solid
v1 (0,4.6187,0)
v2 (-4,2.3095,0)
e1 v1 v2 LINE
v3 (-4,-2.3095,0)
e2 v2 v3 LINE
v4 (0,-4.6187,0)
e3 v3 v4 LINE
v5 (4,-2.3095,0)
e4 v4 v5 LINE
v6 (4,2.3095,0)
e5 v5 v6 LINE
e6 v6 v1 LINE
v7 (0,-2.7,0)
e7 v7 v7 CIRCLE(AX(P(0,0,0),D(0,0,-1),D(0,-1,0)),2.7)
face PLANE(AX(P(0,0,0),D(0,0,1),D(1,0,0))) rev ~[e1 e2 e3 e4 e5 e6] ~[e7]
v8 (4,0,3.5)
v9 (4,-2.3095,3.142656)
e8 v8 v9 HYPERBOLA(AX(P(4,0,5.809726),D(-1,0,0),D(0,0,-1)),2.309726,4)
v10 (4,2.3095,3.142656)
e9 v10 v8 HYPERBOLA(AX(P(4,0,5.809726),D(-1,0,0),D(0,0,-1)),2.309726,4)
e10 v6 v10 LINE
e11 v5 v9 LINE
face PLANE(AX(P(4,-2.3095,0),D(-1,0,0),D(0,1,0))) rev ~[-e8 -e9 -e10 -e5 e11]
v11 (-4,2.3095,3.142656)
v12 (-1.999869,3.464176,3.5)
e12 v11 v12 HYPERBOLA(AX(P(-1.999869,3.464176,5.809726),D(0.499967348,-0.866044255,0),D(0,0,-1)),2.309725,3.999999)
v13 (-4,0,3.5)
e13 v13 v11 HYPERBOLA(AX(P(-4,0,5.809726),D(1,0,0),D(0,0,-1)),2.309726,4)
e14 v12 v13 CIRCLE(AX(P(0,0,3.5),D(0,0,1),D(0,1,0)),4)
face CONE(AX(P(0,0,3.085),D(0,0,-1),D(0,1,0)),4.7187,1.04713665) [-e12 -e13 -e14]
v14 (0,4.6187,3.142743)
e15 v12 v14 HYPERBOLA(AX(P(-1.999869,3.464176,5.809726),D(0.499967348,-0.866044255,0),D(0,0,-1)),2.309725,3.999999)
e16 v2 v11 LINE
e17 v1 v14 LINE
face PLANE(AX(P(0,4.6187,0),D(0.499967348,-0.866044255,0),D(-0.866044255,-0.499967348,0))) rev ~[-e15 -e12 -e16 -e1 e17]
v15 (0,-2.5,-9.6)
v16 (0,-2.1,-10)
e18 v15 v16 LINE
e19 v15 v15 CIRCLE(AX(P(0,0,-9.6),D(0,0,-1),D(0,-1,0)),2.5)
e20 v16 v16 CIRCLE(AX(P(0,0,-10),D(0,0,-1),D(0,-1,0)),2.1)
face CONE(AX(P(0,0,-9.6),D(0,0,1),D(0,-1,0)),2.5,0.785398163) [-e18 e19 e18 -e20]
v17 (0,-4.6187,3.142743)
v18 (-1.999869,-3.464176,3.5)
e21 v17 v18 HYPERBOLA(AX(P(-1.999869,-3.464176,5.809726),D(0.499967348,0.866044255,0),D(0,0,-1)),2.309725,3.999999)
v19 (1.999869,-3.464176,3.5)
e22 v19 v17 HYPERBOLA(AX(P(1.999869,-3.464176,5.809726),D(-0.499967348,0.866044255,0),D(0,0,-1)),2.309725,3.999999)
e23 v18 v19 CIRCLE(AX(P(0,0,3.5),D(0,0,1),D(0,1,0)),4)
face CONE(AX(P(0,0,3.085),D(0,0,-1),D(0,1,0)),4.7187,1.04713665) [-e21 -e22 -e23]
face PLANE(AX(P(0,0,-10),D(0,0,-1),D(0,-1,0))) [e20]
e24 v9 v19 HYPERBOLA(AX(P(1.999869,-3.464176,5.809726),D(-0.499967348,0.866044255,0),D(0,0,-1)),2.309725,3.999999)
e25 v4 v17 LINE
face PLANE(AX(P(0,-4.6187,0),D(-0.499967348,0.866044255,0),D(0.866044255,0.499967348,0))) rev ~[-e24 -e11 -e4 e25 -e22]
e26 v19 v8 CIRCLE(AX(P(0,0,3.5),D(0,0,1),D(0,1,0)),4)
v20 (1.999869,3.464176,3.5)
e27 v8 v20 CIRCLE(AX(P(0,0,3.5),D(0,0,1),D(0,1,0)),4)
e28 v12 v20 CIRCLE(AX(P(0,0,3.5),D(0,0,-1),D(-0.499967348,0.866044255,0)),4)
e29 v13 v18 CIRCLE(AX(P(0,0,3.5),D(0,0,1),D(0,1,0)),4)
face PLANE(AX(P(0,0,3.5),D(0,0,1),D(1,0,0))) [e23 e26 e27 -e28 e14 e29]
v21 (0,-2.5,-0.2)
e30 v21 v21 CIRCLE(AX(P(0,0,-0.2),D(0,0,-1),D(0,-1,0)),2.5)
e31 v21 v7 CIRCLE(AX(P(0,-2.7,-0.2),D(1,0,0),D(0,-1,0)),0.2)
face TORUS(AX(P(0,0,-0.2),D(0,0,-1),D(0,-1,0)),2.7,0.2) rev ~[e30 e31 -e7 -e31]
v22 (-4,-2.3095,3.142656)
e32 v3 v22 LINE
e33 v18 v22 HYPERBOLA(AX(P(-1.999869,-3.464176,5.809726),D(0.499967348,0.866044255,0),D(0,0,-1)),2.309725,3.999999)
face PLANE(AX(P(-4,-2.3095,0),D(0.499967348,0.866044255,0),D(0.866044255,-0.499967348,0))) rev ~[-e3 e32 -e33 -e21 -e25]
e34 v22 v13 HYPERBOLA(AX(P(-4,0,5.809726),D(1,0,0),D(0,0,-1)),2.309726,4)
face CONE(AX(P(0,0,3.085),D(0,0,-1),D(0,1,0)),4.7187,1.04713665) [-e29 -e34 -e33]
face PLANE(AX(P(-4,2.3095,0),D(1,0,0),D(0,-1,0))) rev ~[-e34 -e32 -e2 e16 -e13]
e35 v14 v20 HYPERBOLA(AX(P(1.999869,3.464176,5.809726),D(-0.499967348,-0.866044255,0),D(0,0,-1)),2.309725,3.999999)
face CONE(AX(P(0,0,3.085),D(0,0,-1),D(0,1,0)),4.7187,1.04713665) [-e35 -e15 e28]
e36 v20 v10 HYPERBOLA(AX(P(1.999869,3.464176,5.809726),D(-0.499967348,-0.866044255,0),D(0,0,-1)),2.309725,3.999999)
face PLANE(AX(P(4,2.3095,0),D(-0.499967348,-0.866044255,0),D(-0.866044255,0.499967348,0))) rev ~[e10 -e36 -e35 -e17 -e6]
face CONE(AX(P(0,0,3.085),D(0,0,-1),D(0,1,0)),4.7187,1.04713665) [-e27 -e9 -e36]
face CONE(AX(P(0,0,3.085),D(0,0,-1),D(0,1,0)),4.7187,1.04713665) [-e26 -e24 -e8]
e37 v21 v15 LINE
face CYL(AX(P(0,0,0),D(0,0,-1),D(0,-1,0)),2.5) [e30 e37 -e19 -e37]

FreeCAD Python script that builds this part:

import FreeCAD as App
import Part
import Sketcher

V = App.Vector


def edges_at(feature, points):
    """Names of the edges that pass closest to the given points."""
    edges = feature.Shape.Edges
    near = lambda p: min(range(len(edges)), key=lambda i: edges[i].distToShape(Part.Vertex(*p))[0])
    return sorted({f"Edge{near(p) + 1}" for p in points})

doc = App.newDocument("Part")
body = doc.addObject("PartDesign::Body", "Body")

# Sketch on XY plane
sketch1 = body.newObject("Sketcher::SketchObject", "Sketch")
sketch1.AttachmentSupport = (doc.getObject("XY_Plane"), [""])
sketch1.MapMode = "FlatFace"
sketch1.addGeometry(Part.LineSegment(V(0, 4.6187, 0), V(-4, 2.3095, 0)), False)
sketch1.addGeometry(Part.LineSegment(V(-4, 2.3095, 0), V(-4, -2.3095, 0)), False)
sketch1.addGeometry(Part.LineSegment(V(-4, -2.3095, 0), V(0, -4.6187, 0)), False)
sketch1.addGeometry(Part.LineSegment(V(0, -4.6187, 0), V(4, -2.3095, 0)), False)
sketch1.addGeometry(Part.LineSegment(V(4, -2.3095, 0), V(4, 2.3095, 0)), False)
sketch1.addGeometry(Part.LineSegment(V(4, 2.3095, 0), V(0, 4.6187, 0)), False)
sketch1.addConstraint(Sketcher.Constraint("Coincident", 0, 2, 1, 1))
sketch1.addConstraint(Sketcher.Constraint("Coincident", 1, 2, 2, 1))
sketch1.addConstraint(Sketcher.Constraint("Coincident", 2, 2, 3, 1))
sketch1.addConstraint(Sketcher.Constraint("Coincident", 3, 2, 4, 1))
sketch1.addConstraint(Sketcher.Constraint("Coincident", 4, 2, 5, 1))
sketch1.addConstraint(Sketcher.Constraint("Coincident", 5, 2, 0, 1))
sketch1.addConstraint(Sketcher.Constraint("Vertical", 1))
sketch1.addConstraint(Sketcher.Constraint("Vertical", 4))
sketch1.addConstraint(Sketcher.Constraint("Symmetric", 0, 2, 3, 2, -1, 1))
sketch1.addConstraint(Sketcher.Constraint("Symmetric", 2, 2, 5, 2, -1, 1))
sketch1.addConstraint(Sketcher.Constraint("PointOnObject", 2, 2, -2))
sketch1.addConstraint(Sketcher.Constraint("Parallel", 2, 5))
sketch1.addConstraint(Sketcher.Constraint("Horizontal", 1, 2, 3, 2))
sketch1.addConstraint(Sketcher.Constraint("DistanceX", 1, 2, 3, 2, 8.0))
sketch1.addConstraint(Sketcher.Constraint("DistanceY", 1, 2, 1, 1, 4.619))
sketch1.addConstraint(Sketcher.Constraint("Distance", 0, 4.6187))
pad1 = body.newObject("PartDesign::Pad", "Pad")
pad1.Profile = sketch1
pad1.Length = 3.5

# Sketch on YZ plane
sketch2 = body.newObject("Sketcher::SketchObject", "Sketch001")
sketch2.AttachmentSupport = (doc.getObject("YZ_Plane"), [""])
sketch2.MapMode = "FlatFace"
sketch2.addGeometry(Part.LineSegment(V(4, 3.5, 0), V(4.7187, 3.085, 0)), False)
sketch2.addGeometry(Part.LineSegment(V(4.7187, 3.085, 0), V(4.7187, 3.5, 0)), False)
sketch2.addGeometry(Part.LineSegment(V(4.7187, 3.5, 0), V(4, 3.5, 0)), False)
sketch2.addConstraint(Sketcher.Constraint("Coincident", 0, 2, 1, 1))
sketch2.addConstraint(Sketcher.Constraint("Coincident", 1, 2, 2, 1))
sketch2.addConstraint(Sketcher.Constraint("Coincident", 2, 2, 0, 1))
sketch2.addConstraint(Sketcher.Constraint("Vertical", 1))
sketch2.addConstraint(Sketcher.Constraint("Horizontal", 2))
sketch2.addConstraint(Sketcher.Constraint("DistanceX", -1, 1, 2, 2, 4.0))
sketch2.addConstraint(Sketcher.Constraint("DistanceY", -1, 1, 1, 2, 3.5))
sketch2.addConstraint(Sketcher.Constraint("Distance", 0, 0.83))
sketch2.addConstraint(Sketcher.Constraint("DistanceY", 1, 1, 1, 2, 0.415))
groove = body.newObject("PartDesign::Groove", "Groove")
groove.Profile = sketch2
groove.ReferenceAxis = (sketch2, ["V_Axis"])
groove.Angle = 360

# Sketch on YZ plane
sketch3 = body.newObject("Sketcher::SketchObject", "Sketch002")
sketch3.AttachmentSupport = (doc.getObject("YZ_Plane"), [""])
sketch3.MapMode = "FlatFace"
sketch3.addGeometry(Part.LineSegment(V(-2.5, -10, 0), V(0, -10, 0)), False)
sketch3.addGeometry(Part.LineSegment(V(0, -10, 0), V(0, 0, 0)), False)
sketch3.addGeometry(Part.LineSegment(V(0, 0, 0), V(-2.5, 0, 0)), False)
sketch3.addGeometry(Part.LineSegment(V(-2.5, 0, 0), V(-2.5, -10, 0)), False)
sketch3.addConstraint(Sketcher.Constraint("Coincident", 0, 2, 1, 1))
sketch3.addConstraint(Sketcher.Constraint("Coincident", 1, 2, 2, 1))
sketch3.addConstraint(Sketcher.Constraint("Coincident", 2, 2, 3, 1))
sketch3.addConstraint(Sketcher.Constraint("Coincident", 3, 2, 0, 1))
sketch3.addConstraint(Sketcher.Constraint("Horizontal", 0))
sketch3.addConstraint(Sketcher.Constraint("Vertical", 1))
sketch3.addConstraint(Sketcher.Constraint("Horizontal", 2))
sketch3.addConstraint(Sketcher.Constraint("Vertical", 3))
sketch3.addConstraint(Sketcher.Constraint("Coincident", 1, 2, -1, 1))
sketch3.addConstraint(Sketcher.Constraint("DistanceY", 1, 1, 1, 2, 10.0))
sketch3.addConstraint(Sketcher.Constraint("DistanceX", 0, 1, 0, 2, 2.5))
revolution = body.newObject("PartDesign::Revolution", "Revolution")
revolution.Profile = sketch3
revolution.ReferenceAxis = (sketch3, ["V_Axis"])
revolution.Angle = 360
doc.recompute()

chamfer = body.newObject("PartDesign::Chamfer", "Chamfer")
chamfer.Base = (revolution, edges_at(revolution, [(0, 2.5, -10)]))
chamfer.Size = 0.4
doc.recompute()

fillet = body.newObject("PartDesign::Fillet", "Fillet")
fillet.Base = (chamfer, edges_at(chamfer, [(0, 2.5, 0)]))
fillet.Radius = 0.2

doc.recompute()
